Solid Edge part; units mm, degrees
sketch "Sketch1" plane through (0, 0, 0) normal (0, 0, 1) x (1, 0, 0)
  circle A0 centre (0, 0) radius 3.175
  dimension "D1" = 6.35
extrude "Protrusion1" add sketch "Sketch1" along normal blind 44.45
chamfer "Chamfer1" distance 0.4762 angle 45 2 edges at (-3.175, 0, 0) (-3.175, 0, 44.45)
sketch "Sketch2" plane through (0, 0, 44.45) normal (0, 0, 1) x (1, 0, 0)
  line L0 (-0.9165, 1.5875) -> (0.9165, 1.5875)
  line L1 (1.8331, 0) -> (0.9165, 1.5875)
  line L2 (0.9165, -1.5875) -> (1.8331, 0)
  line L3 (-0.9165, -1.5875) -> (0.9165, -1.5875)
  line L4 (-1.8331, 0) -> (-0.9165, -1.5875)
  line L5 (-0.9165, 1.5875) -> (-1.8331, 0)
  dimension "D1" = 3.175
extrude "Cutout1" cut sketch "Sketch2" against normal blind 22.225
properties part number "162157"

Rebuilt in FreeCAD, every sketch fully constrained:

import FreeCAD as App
import Part
import Sketcher
Q = App.Units.Quantity


def edges_at(feature, points):
    """Names of the edges that pass closest to the given points."""
    edges = feature.Shape.Edges
    near = lambda p: min(range(len(edges)), key=lambda i: edges[i].distToShape(Part.Vertex(*p))[0])
    return sorted({f"Edge{near(p) + 1}" for p in points})


def add_polygon(sketch, points):
    """Adds a closed chain of lines whose ends are joined by coincident constraints."""
    first, n = sketch.GeometryCount, len(points)
    for a, b in zip(points, points[1:] + points[:1]):
        sketch.addGeometry(Part.LineSegment(App.Vector(*a, 0), App.Vector(*b, 0)), False)
    for i in range(n):
        sketch.addConstraint(Sketcher.Constraint("Coincident", first + i, 2, first + (i + 1) % n, 1))

doc = App.newDocument("Part")
body = doc.addObject("PartDesign::Body", "Body")

# Sketch on XY plane
sketch1 = doc.addObject("Sketcher::SketchObject", "Sketch")
body.addObject(sketch1)
sketch1.AttachmentSupport = (doc.XY_Plane, [""])
sketch1.MapMode = "FlatFace"
sketch1.addGeometry(Part.Circle(App.Vector(0, 0, 0), App.Vector(0, 0, 1), 3.2), False)
sketch1.addConstraint(Sketcher.Constraint("Coincident", 0, 3, -1, 1))
sketch1.addConstraint(Sketcher.Constraint("Diameter", 0, Q("0.25 in")))
pad1 = doc.addObject("PartDesign::Pad", "Pad")
body.addObject(pad1)
pad1.Profile = sketch1
pad1.Length = Q("1.75 in")
doc.recompute()

chamfer = doc.addObject("PartDesign::Chamfer", "Chamfer")
body.addObject(chamfer)
chamfer.Base = (pad1, edges_at(pad1, [(-3.175, 0, 0), (-3.175, 0, 44.45)]))
chamfer.Size = 0.4762

# Sketch on XY plane
sketch2 = doc.addObject("Sketcher::SketchObject", "Sketch001")
body.addObject(sketch2)
sketch2.AttachmentSupport = (doc.XY_Plane, [""])
sketch2.MapMode = "FlatFace"
sketch2.AttachmentOffset = App.Placement(App.Vector(0, 0, 1.75 * 25.4), App.Rotation())
add_polygon(sketch2, [(0.9, 1.6), (-0.9, 1.6), (-1.8, 0), (-0.9, -1.6), (0.9, -1.6), (1.8, 0)])  # lines 0-5
sketch2.addConstraint(Sketcher.Constraint("Horizontal", 0))
sketch2.addConstraint(Sketcher.Constraint("Horizontal", 3))
sketch2.addConstraint(Sketcher.Constraint("Symmetric", 0, 2, 3, 2, -1, 1))
sketch2.addConstraint(Sketcher.Constraint("Symmetric", 1, 2, 4, 2, -1, 1))
sketch2.addConstraint(Sketcher.Constraint("PointOnObject", 1, 2, -1))
sketch2.addConstraint(Sketcher.Constraint("Parallel", 2, 5))
sketch2.addConstraint(Sketcher.Constraint("Vertical", 0, 2, 2, 2))
sketch2.addConstraint(Sketcher.Constraint("DistanceY", -1, 1, 0, 2, Q("0.0625 in")))
sketch2.addConstraint(Sketcher.Constraint("DistanceX", 0, 2, 0, 1, Q("1.833 mm")))
sketch2.addConstraint(Sketcher.Constraint("Distance", 1, Q("1.833 mm")))
pocket1 = doc.addObject("PartDesign::Pocket", "Pocket")
body.addObject(pocket1)
pocket1.Profile = sketch2
pocket1.Length = Q("0.875 in")

doc.recompute()
